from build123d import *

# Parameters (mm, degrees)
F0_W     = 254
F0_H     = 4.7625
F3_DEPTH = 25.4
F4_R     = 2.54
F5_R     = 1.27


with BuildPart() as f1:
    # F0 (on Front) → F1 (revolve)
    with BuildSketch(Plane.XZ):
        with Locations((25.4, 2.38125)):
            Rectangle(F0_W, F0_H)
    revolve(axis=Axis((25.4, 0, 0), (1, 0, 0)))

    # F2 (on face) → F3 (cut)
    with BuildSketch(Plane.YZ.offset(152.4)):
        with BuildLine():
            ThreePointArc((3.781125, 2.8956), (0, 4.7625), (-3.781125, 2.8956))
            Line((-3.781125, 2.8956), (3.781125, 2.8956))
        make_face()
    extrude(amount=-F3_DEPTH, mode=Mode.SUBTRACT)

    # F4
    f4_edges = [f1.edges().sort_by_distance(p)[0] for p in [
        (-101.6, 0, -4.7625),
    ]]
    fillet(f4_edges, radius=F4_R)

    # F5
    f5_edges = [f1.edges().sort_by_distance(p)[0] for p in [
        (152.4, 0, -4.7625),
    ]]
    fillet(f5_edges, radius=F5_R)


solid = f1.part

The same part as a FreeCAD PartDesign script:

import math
import FreeCAD as App
import Part
import Sketcher
from FreeCAD import Vector
Q = App.Units.Quantity


def edges_at(feature, points):
    """Names of the edges that pass closest to the given points."""
    edges = feature.Shape.Edges
    near = lambda p: min(range(len(edges)), key=lambda i: edges[i].distToShape(Part.Vertex(*p))[0])
    return sorted({f"Edge{near(p) + 1}" for p in points})

doc = App.newDocument("Part")
body = doc.addObject("PartDesign::Body", "Body")

# Sketch on XZ plane
sketch1 = body.newObject("Sketcher::SketchObject", "Sketch")
sketch1.AttachmentSupport = (doc.getObject("XZ_Plane"), [""])
sketch1.MapMode = "FlatFace"
sketch1.addGeometry([
    Part.LineSegment(Vector(-101.6, 4.8, 0), Vector(-101.6, 0, 0)),
    Part.LineSegment(Vector(-101.6, 0, 0), Vector(152.4, 0, 0)),
    Part.LineSegment(Vector(152.4, 0, 0), Vector(152.4, 4.8, 0)),
    Part.LineSegment(Vector(152.4, 4.8, 0), Vector(-101.6, 4.8, 0)),
], False)
sketch1.addConstraint([
    Sketcher.Constraint("Coincident", 0, 2, 1, 1),
    Sketcher.Constraint("Coincident", 1, 2, 2, 1),
    Sketcher.Constraint("Coincident", 2, 2, 3, 1),
    Sketcher.Constraint("Coincident", 3, 2, 0, 1),
    Sketcher.Constraint("Vertical", 0),
    Sketcher.Constraint("Horizontal", 1),
    Sketcher.Constraint("Vertical", 2),
    Sketcher.Constraint("Horizontal", 3),
    Sketcher.Constraint("PointOnObject", 0, 2, -1),
    Sketcher.Constraint("DistanceX", 1, 1, 1, 2, Q("10 in")),
    Sketcher.Constraint("DistanceX", 0, 2, -1, 1, Q("4 in")),
    Sketcher.Constraint("DistanceY", 0, 2, 0, 1, Q("0.1875 in")),
])
revolution = body.newObject("PartDesign::Revolution", "Revolution")
revolution.Profile = sketch1
revolution.ReferenceAxis = (sketch1, ["H_Axis"])
revolution.Angle = 360

# Sketch on YZ plane
sketch2 = body.newObject("Sketcher::SketchObject", "Sketch001")
sketch2.AttachmentSupport = (doc.getObject("YZ_Plane"), [""])
sketch2.MapMode = "FlatFace"
sketch2.AttachmentOffset = App.Placement(Vector(0, 0, 6 * 25.4), App.Rotation())
sketch2.addGeometry([
    Part.ArcOfCircle(Part.Circle(Vector(0, 0, 0), Vector(0, 0, 1), 4.8), math.radians(37), math.radians(143)),
    Part.LineSegment(Vector(-3.8, 2.9, 0), Vector(3.8, 2.9, 0)),
], False)
sketch2.addConstraint([
    Sketcher.Constraint("Coincident", 0, 1, 1, 2),
    Sketcher.Constraint("Coincident", 1, 1, 0, 2),
    Sketcher.Constraint("Horizontal", 1),
    Sketcher.Constraint("Coincident", 0, 3, -1, 1),
    Sketcher.Constraint("Radius", 0, Q("0.1875 in")),
    Sketcher.Constraint("DistanceY", -1, 1, 0, 1, Q("0.114 in")),
])
pocket1 = body.newObject("PartDesign::Pocket", "Pocket")
pocket1.Profile = sketch2
pocket1.Length = Q("1 in")
doc.recompute()

fillet = body.newObject("PartDesign::Fillet", "Fillet")
fillet.Base = (pocket1, edges_at(pocket1, [(-101.6, 0, -4.763)]))
fillet.Radius = Q("0.1 in")
doc.recompute()

fillet2 = body.newObject("PartDesign::Fillet", "Fillet001")
fillet2.Base = (fillet, edges_at(fillet, [(152.4, 0, -4.763)]))
fillet2.Radius = Q("0.05 in")

doc.recompute()
